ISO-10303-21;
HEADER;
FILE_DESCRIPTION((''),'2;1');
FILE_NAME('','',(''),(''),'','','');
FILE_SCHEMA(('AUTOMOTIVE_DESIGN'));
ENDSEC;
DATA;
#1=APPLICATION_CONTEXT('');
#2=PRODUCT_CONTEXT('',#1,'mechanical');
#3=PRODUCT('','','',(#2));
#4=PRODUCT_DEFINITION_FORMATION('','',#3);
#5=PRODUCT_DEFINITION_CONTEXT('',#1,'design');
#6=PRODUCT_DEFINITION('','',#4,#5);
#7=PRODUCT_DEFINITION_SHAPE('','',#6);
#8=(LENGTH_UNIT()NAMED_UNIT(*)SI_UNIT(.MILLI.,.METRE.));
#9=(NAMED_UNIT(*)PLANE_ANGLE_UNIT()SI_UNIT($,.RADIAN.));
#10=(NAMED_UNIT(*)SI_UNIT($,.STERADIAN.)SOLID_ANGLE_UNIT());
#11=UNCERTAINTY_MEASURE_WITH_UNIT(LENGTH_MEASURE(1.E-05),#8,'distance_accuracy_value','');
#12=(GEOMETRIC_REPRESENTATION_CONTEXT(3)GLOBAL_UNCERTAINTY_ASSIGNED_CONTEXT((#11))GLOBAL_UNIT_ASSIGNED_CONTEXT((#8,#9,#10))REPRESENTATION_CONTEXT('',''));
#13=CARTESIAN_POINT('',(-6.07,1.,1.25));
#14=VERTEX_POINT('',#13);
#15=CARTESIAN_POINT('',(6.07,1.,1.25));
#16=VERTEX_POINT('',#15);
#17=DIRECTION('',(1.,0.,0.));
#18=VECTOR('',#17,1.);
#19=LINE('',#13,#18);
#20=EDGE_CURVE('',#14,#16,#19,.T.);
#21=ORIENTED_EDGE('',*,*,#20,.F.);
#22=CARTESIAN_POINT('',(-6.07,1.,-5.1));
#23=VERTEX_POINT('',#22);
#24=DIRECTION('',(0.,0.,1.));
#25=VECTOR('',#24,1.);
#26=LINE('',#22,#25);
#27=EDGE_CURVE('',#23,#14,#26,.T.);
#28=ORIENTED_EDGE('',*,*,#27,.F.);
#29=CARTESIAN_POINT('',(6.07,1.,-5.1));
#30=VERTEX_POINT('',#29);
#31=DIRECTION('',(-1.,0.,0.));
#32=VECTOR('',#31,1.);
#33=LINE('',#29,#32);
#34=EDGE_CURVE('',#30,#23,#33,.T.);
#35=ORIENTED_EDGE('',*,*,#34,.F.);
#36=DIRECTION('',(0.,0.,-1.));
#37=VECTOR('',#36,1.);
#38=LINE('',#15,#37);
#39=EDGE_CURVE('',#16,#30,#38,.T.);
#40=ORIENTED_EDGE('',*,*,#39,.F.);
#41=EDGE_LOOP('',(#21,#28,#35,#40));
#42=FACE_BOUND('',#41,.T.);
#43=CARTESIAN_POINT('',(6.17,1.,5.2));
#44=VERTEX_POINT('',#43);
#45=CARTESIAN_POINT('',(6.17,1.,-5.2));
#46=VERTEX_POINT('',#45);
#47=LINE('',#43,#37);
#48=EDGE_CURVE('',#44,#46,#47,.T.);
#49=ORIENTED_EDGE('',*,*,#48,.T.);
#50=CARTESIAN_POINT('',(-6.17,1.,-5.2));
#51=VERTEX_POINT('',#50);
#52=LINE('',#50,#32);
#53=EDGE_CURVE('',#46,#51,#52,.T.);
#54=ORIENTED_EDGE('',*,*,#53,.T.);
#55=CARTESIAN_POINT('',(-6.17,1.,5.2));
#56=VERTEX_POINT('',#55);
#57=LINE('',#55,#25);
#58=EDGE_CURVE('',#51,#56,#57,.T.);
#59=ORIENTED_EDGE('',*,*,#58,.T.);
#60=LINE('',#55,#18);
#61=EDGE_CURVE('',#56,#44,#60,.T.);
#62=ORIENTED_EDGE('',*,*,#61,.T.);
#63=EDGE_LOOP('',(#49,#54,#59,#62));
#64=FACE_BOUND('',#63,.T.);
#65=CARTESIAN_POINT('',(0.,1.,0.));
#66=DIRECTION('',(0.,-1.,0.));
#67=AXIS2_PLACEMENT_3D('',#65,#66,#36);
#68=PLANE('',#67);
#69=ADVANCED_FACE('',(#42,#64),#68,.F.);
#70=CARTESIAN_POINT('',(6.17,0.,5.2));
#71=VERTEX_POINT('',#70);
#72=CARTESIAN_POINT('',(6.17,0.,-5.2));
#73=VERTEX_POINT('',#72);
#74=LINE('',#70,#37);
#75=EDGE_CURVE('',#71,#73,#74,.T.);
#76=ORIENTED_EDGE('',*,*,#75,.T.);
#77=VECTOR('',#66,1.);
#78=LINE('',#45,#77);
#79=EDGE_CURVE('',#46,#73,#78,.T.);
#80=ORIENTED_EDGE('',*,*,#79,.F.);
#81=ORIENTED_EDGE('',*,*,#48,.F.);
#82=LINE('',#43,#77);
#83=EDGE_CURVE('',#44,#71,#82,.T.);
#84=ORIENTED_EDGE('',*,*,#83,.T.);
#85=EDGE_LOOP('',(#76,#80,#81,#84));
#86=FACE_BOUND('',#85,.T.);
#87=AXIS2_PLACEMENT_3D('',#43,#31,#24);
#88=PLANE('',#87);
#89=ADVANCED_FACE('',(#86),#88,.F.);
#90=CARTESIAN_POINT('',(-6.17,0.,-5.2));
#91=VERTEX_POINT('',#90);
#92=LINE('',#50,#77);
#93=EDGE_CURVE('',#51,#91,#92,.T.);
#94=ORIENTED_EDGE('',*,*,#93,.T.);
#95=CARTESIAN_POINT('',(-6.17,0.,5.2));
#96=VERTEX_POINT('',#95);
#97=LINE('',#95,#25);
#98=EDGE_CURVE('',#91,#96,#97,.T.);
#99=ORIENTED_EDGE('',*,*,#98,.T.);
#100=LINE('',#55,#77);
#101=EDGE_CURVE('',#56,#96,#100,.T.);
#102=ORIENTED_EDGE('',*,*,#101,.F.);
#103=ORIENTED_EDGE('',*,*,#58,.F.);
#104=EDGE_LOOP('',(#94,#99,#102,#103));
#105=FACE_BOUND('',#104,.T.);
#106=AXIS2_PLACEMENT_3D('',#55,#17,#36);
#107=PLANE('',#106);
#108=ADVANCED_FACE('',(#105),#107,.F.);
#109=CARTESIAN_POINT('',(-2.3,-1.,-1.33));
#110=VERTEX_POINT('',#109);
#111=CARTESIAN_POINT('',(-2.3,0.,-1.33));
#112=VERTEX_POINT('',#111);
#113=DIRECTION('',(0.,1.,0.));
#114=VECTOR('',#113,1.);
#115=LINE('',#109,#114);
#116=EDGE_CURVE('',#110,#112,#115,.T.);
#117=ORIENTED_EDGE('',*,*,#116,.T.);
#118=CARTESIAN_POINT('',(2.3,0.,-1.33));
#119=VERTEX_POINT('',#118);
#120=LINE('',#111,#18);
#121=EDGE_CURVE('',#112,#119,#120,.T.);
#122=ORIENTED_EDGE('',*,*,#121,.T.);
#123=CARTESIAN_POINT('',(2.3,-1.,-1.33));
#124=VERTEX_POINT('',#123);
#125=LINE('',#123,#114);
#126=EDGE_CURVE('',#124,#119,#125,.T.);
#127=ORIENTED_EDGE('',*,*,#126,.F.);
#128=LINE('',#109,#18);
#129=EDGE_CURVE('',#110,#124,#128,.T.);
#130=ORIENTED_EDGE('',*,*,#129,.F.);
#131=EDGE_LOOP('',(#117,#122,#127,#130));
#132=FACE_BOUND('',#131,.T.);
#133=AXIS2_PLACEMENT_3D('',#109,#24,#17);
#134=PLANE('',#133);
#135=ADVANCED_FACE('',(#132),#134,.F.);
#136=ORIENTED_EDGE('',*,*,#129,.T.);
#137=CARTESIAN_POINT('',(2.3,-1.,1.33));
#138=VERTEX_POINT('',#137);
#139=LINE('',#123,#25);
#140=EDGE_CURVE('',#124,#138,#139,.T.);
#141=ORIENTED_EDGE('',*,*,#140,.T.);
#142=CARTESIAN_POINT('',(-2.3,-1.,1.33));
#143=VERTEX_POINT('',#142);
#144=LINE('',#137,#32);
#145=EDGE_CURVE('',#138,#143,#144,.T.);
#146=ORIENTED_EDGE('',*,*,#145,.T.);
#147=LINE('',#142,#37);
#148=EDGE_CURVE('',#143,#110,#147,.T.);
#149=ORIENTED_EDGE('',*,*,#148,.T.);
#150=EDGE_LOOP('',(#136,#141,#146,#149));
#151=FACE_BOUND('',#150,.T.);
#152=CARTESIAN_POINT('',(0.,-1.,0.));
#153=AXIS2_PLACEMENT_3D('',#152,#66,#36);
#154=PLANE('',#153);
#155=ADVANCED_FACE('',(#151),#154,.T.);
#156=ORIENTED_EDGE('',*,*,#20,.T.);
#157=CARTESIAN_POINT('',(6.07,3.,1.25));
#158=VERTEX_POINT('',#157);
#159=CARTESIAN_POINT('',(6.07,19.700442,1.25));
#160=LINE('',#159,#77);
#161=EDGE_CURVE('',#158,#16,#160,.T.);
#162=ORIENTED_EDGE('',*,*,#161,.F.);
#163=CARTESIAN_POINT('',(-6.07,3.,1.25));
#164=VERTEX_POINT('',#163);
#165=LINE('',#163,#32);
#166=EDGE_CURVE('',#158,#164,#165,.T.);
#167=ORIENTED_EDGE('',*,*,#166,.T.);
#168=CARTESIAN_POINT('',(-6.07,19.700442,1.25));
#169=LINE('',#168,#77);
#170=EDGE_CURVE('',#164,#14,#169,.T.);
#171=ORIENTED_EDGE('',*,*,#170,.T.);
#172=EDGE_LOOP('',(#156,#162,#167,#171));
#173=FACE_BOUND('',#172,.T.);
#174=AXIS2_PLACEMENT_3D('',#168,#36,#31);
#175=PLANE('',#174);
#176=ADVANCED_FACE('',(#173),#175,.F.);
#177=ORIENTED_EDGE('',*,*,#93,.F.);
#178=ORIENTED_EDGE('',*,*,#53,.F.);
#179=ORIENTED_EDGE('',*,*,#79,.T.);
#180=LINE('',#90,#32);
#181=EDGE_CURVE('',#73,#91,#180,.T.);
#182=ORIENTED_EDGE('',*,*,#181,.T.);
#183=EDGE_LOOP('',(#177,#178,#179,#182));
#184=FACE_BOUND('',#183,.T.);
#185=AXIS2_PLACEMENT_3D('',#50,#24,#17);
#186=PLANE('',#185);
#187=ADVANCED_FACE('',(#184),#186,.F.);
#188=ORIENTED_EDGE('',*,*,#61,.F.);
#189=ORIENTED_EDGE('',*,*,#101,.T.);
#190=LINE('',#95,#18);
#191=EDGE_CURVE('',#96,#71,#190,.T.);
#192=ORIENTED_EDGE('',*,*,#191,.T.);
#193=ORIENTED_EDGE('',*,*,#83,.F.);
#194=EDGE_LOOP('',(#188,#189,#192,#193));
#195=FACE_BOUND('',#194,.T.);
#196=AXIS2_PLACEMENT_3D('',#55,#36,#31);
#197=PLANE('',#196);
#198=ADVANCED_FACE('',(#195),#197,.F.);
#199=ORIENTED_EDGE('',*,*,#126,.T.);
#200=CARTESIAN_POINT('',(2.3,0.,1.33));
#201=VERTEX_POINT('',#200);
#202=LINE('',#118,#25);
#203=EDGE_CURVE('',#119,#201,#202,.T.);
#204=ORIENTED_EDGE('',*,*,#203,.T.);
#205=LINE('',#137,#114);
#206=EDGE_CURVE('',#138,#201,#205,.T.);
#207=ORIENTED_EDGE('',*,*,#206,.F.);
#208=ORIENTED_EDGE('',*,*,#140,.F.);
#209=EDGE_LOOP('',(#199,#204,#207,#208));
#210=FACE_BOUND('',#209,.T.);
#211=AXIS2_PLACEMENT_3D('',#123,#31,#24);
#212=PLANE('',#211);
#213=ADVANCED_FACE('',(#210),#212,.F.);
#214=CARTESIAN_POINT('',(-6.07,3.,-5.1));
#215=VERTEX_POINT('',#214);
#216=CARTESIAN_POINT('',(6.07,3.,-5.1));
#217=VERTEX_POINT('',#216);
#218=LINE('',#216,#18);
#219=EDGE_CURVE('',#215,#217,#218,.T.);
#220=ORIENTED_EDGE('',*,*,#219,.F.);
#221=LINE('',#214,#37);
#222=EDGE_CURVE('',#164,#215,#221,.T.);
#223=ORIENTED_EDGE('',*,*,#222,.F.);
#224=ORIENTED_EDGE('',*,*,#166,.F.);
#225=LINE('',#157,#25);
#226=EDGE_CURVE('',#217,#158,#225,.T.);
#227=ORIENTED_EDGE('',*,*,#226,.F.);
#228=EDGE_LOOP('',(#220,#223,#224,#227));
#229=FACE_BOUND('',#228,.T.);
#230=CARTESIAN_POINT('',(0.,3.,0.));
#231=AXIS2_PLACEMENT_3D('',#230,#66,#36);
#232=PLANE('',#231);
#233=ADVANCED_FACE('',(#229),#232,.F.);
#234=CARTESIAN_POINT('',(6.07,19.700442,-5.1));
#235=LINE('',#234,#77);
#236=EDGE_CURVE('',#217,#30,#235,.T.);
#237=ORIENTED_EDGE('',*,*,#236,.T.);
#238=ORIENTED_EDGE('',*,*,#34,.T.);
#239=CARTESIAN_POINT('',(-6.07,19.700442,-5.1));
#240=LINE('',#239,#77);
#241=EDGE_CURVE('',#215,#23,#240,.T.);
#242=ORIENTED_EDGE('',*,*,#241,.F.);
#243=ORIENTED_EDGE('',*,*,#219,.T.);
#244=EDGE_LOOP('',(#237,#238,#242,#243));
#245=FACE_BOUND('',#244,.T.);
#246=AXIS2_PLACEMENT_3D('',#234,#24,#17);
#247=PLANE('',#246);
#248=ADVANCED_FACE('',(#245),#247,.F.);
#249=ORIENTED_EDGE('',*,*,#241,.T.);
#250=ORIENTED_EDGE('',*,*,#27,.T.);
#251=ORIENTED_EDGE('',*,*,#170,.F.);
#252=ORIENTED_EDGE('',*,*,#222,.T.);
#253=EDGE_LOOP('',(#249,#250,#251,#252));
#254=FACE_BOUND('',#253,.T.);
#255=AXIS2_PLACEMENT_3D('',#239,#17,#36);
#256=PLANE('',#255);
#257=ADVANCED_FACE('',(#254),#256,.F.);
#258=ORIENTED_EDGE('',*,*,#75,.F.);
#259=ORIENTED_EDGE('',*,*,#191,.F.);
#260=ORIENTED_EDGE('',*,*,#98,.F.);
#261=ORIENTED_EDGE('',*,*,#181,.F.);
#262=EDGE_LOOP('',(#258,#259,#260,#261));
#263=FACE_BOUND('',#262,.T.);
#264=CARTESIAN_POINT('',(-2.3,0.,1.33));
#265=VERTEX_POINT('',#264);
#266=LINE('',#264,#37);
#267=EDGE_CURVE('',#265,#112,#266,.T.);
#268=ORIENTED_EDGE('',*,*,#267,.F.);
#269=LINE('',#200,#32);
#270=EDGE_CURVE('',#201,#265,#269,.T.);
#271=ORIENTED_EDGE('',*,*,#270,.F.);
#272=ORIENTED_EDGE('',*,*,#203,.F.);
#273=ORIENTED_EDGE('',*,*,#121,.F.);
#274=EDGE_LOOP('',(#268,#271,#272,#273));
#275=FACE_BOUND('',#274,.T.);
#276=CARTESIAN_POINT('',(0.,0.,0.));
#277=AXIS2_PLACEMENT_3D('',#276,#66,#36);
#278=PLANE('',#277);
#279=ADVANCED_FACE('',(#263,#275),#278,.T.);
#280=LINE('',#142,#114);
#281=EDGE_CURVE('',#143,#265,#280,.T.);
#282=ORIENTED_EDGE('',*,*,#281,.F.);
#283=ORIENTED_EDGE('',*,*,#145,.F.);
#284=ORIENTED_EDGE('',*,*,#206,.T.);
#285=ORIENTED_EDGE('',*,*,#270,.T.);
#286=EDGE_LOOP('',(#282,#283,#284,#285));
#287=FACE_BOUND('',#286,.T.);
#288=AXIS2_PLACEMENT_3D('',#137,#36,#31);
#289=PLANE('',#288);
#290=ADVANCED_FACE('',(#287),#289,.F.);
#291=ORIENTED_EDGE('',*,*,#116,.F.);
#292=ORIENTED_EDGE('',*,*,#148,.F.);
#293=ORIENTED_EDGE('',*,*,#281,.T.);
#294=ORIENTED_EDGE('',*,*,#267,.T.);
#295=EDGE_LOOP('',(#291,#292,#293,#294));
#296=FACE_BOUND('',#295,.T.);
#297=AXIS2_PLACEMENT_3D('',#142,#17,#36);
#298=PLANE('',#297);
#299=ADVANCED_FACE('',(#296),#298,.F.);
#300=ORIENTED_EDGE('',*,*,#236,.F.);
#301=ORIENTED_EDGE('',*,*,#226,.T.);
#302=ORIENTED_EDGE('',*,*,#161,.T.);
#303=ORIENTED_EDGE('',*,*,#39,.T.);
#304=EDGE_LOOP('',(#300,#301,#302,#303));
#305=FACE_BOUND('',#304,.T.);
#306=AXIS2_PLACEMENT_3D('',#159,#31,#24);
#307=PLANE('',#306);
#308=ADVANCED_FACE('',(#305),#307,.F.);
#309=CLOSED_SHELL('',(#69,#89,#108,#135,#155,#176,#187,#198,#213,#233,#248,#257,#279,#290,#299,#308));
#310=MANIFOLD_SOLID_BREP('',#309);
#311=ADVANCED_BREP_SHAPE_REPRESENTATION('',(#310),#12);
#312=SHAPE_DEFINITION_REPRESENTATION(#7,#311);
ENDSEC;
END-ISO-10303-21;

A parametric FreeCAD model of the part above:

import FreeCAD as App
import Part
import Sketcher

V = App.Vector
Q = App.Units.Quantity


def add_polygon(sketch, points):
    """Adds a closed chain of lines whose ends are joined by coincident constraints."""
    first, n = sketch.GeometryCount, len(points)
    for a, b in zip(points, points[1:] + points[:1]):
        sketch.addGeometry(Part.LineSegment(App.Vector(*a, 0), App.Vector(*b, 0)), False)
    for i in range(n):
        sketch.addConstraint(Sketcher.Constraint("Coincident", first + i, 2, first + (i + 1) % n, 1))

doc = App.newDocument("Part")
params = doc.addObject("Spreadsheet::Sheet", "Params")
for row, (alias, value) in enumerate([
    ("sketch1_height", "10.4 mm"),
    ("sketch1_width", "12.34 mm"),
    ("pad1_length", "1 mm"),
    ("sketch2_width", "12.14 mm"),
    ("sketch2_height", "6.35 mm"),
    ("pad2_length", "2 mm"),
    ("sketch3_width", "4.6 mm"),
    ("sketch3_height", "2.66 mm"),
    ("pad3_length", "1 mm"),
], start=1):
    params.set(f"A{row}", alias)
    params.set(f"B{row}", "=" + value)
    params.setAlias(f"B{row}", alias)

body = doc.addObject("PartDesign::Body", "Body")

sketch1 = body.newObject("Sketcher::SketchObject", "Sketch")
sketch1.AttachmentSupport = (doc.getObject("XZ_Plane"), [""])
sketch1.MapMode = "FlatFace"
add_polygon(sketch1, [(-6, -5), (-6, 5), (6, 5), (6, -5)])
sketch1.addConstraint(Sketcher.Constraint("Vertical", 0))
sketch1.addConstraint(Sketcher.Constraint("Horizontal", 1))
sketch1.addConstraint(Sketcher.Constraint("Vertical", 2))
sketch1.addConstraint(Sketcher.Constraint("Horizontal", 3))
sketch1.addConstraint(Sketcher.Constraint("Symmetric", 0, 2, 2, 2, -1, 1))
sketch1.addConstraint(Sketcher.Constraint("DistanceY", 0, 1, 0, 2, Q("10.4 mm")))
sketch1.addConstraint(Sketcher.Constraint("DistanceX", 1, 1, 1, 2, Q("12.34 mm")))
sketch1.setExpression("Constraints[9]", "Params.sketch1_height")
sketch1.setExpression("Constraints[10]", "Params.sketch1_width")
pad1 = body.newObject("PartDesign::Pad", "Pad")
pad1.Profile = sketch1
pad1.setExpression("Length", "Params.pad1_length")
pad1.Reversed = True

sketch2 = body.newObject("Sketcher::SketchObject", "Sketch001")
sketch2.AttachmentSupport = (doc.getObject("XZ_Plane"), [""])
sketch2.MapMode = "FlatFace"
sketch2.AttachmentOffset = App.Placement(V(0, 0, -1), App.Rotation())
add_polygon(sketch2, [(-6, -5), (-6, 1), (6, 1), (6, -5)])
sketch2.addConstraint(Sketcher.Constraint("Vertical", 0))
sketch2.addConstraint(Sketcher.Constraint("Horizontal", 1))
sketch2.addConstraint(Sketcher.Constraint("Vertical", 2))
sketch2.addConstraint(Sketcher.Constraint("Horizontal", 3))
sketch2.addConstraint(Sketcher.Constraint("DistanceX", 1, 1, 1, 2, Q("12.14 mm")))
sketch2.addConstraint(Sketcher.Constraint("DistanceY", 0, 1, 0, 2, Q("6.35 mm")))
sketch2.addConstraint(Sketcher.Constraint("DistanceY", 2, 2, -1, 1, Q("5.1 mm")))
sketch2.addConstraint(Sketcher.Constraint("DistanceX", 0, 2, -1, 1, Q("6.07 mm")))
sketch2.setExpression("Constraints[8]", "Params.sketch2_width")
sketch2.setExpression("Constraints[9]", "Params.sketch2_height")
pad2 = body.newObject("PartDesign::Pad", "Pad001")
pad2.Profile = sketch2
pad2.setExpression("Length", "Params.pad2_length")
pad2.Reversed = True

sketch3 = body.newObject("Sketcher::SketchObject", "Sketch002")
sketch3.AttachmentSupport = (doc.getObject("XZ_Plane"), [""])
sketch3.MapMode = "FlatFace"
add_polygon(sketch3, [(-2.3, 1.3), (-2.3, -1.3), (2.3, -1.3), (2.3, 1.3)])
sketch3.addConstraint(Sketcher.Constraint("Vertical", 0))
sketch3.addConstraint(Sketcher.Constraint("Horizontal", 1))
sketch3.addConstraint(Sketcher.Constraint("Vertical", 2))
sketch3.addConstraint(Sketcher.Constraint("Horizontal", 3))
sketch3.addConstraint(Sketcher.Constraint("Symmetric", 0, 2, 2, 2, -1, 1))
sketch3.addConstraint(Sketcher.Constraint("DistanceX", 1, 1, 1, 2, Q("4.6 mm")))
sketch3.addConstraint(Sketcher.Constraint("DistanceY", 0, 2, 0, 1, Q("2.66 mm")))
sketch3.setExpression("Constraints[9]", "Params.sketch3_width")
sketch3.setExpression("Constraints[10]", "Params.sketch3_height")
pad3 = body.newObject("PartDesign::Pad", "Pad002")
pad3.Profile = sketch3
pad3.setExpression("Length", "Params.pad3_length")

doc.recompute()
